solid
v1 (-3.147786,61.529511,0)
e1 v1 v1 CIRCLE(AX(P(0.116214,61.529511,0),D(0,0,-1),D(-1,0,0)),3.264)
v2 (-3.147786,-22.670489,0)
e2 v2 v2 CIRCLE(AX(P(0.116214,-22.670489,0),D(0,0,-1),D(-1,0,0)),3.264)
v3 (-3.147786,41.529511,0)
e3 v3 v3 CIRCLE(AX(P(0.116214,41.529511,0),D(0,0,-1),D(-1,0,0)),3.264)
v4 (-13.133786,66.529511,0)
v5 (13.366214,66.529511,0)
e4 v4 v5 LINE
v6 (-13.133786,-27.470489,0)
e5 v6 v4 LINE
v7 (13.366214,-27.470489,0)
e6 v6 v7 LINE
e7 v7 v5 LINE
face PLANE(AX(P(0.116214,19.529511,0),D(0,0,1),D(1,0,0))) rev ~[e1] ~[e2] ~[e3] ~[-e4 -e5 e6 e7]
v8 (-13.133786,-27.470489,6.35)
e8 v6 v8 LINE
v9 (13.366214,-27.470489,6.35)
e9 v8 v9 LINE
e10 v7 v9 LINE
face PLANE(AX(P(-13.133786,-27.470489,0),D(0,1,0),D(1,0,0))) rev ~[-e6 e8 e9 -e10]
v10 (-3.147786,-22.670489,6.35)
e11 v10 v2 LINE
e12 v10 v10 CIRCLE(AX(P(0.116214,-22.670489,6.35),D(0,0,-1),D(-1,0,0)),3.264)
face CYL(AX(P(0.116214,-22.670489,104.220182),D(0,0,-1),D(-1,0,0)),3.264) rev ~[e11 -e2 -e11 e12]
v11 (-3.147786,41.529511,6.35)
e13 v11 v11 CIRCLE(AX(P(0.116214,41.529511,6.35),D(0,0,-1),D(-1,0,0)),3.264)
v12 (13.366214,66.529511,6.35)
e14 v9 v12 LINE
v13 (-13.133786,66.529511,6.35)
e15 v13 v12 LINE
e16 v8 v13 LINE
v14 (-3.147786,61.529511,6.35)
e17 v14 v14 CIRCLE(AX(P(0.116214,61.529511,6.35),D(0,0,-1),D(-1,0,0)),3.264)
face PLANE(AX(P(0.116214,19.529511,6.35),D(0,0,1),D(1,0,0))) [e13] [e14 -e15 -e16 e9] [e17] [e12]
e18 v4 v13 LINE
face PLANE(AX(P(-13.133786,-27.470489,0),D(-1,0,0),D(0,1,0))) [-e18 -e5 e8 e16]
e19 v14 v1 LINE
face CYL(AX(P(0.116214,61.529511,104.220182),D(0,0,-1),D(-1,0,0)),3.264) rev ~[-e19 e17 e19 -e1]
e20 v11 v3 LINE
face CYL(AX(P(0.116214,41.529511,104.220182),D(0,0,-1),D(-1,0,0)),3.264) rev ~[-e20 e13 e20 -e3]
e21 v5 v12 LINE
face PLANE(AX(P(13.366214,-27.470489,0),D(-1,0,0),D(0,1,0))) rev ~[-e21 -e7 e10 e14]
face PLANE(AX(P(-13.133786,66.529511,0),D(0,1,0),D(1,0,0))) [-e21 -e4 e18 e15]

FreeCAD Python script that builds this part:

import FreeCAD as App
import Part
import Sketcher


def add_polygon(sketch, points):
    """Adds a closed chain of lines whose ends are joined by coincident constraints."""
    first, n = sketch.GeometryCount, len(points)
    for a, b in zip(points, points[1:] + points[:1]):
        sketch.addGeometry(Part.LineSegment(App.Vector(*a, 0), App.Vector(*b, 0)), False)
    for i in range(n):
        sketch.addConstraint(Sketcher.Constraint("Coincident", first + i, 2, first + (i + 1) % n, 1))

doc = App.newDocument("Part")
body = doc.addObject("PartDesign::Body", "Body")

sketch1 = doc.addObject("Sketcher::SketchObject", "Sketch")
body.addObject(sketch1)
sketch1.AttachmentSupport = (doc.XY_Plane, [""])
sketch1.MapMode = "FlatFace"
add_polygon(sketch1, [(-13.133786, 66.529511), (-13.133786, -27.470489), (13.366214, -27.470489), (13.366214, 66.529511)])
sketch1.addConstraint(Sketcher.Constraint("Vertical", 0))
sketch1.addConstraint(Sketcher.Constraint("Horizontal", 1))
sketch1.addConstraint(Sketcher.Constraint("Vertical", 2))
sketch1.addConstraint(Sketcher.Constraint("Horizontal", 3))
sketch1.addConstraint(Sketcher.Constraint("DistanceY", 0, 2, 0, 1, 94.0))
sketch1.addConstraint(Sketcher.Constraint("DistanceX", 1, 1, 1, 2, 26.5))
sketch1.addConstraint(Sketcher.Constraint("DistanceY", 0, 2, -1, 1, 27.470489))
sketch1.addConstraint(Sketcher.Constraint("DistanceX", 0, 2, -1, 1, 13.133786))
pad1 = doc.addObject("PartDesign::Pad", "Pad")
body.addObject(pad1)
pad1.Profile = sketch1
pad1.Length = 6.35

sketch2 = doc.addObject("Sketcher::SketchObject", "Sketch001")
body.addObject(sketch2)
sketch2.AttachmentSupport = (doc.XY_Plane, [""])
sketch2.MapMode = "FlatFace"
sketch2.AttachmentOffset = App.Placement(App.Vector(0, 0, 6.35), App.Rotation())
sketch2.addGeometry(Part.Circle(App.Vector(0.116214, 61.529511, 0), App.Vector(0, 0, 1), 3.264), False)
sketch2.addGeometry(Part.Circle(App.Vector(0.116214, 41.529511, 0), App.Vector(0, 0, 1), 3.264), False)
sketch2.addGeometry(Part.Circle(App.Vector(0.116214, -22.670489, 0), App.Vector(0, 0, 1), 3.264), False)
sketch2.addConstraint(Sketcher.Constraint("Equal", 0, 1))
sketch2.addConstraint(Sketcher.Constraint("Equal", 1, 2))
sketch2.addConstraint(Sketcher.Constraint("Vertical", 0, 3, 1, 3))
sketch2.addConstraint(Sketcher.Constraint("Vertical", 1, 3, 2, 3))
sketch2.addConstraint(Sketcher.Constraint("Diameter", 0, 6.528))
sketch2.addConstraint(Sketcher.Constraint("DistanceY", 1, 3, 0, 3, 20.0))
sketch2.addConstraint(Sketcher.Constraint("DistanceY", 2, 3, 1, 3, 64.2))
sketch2.addConstraint(Sketcher.Constraint("DistanceY", -1, 1, 0, 3, 61.529511))
sketch2.addConstraint(Sketcher.Constraint("DistanceX", -1, 1, 0, 3, 0.116214))
doc.recompute()
hole = doc.addObject("PartDesign::Hole", "Hole")
body.addObject(hole)
hole.Profile = sketch2
hole.ThreadType = "None"
hole.Diameter = 6.528
hole.DepthType = "ThroughAll"

doc.recompute()
